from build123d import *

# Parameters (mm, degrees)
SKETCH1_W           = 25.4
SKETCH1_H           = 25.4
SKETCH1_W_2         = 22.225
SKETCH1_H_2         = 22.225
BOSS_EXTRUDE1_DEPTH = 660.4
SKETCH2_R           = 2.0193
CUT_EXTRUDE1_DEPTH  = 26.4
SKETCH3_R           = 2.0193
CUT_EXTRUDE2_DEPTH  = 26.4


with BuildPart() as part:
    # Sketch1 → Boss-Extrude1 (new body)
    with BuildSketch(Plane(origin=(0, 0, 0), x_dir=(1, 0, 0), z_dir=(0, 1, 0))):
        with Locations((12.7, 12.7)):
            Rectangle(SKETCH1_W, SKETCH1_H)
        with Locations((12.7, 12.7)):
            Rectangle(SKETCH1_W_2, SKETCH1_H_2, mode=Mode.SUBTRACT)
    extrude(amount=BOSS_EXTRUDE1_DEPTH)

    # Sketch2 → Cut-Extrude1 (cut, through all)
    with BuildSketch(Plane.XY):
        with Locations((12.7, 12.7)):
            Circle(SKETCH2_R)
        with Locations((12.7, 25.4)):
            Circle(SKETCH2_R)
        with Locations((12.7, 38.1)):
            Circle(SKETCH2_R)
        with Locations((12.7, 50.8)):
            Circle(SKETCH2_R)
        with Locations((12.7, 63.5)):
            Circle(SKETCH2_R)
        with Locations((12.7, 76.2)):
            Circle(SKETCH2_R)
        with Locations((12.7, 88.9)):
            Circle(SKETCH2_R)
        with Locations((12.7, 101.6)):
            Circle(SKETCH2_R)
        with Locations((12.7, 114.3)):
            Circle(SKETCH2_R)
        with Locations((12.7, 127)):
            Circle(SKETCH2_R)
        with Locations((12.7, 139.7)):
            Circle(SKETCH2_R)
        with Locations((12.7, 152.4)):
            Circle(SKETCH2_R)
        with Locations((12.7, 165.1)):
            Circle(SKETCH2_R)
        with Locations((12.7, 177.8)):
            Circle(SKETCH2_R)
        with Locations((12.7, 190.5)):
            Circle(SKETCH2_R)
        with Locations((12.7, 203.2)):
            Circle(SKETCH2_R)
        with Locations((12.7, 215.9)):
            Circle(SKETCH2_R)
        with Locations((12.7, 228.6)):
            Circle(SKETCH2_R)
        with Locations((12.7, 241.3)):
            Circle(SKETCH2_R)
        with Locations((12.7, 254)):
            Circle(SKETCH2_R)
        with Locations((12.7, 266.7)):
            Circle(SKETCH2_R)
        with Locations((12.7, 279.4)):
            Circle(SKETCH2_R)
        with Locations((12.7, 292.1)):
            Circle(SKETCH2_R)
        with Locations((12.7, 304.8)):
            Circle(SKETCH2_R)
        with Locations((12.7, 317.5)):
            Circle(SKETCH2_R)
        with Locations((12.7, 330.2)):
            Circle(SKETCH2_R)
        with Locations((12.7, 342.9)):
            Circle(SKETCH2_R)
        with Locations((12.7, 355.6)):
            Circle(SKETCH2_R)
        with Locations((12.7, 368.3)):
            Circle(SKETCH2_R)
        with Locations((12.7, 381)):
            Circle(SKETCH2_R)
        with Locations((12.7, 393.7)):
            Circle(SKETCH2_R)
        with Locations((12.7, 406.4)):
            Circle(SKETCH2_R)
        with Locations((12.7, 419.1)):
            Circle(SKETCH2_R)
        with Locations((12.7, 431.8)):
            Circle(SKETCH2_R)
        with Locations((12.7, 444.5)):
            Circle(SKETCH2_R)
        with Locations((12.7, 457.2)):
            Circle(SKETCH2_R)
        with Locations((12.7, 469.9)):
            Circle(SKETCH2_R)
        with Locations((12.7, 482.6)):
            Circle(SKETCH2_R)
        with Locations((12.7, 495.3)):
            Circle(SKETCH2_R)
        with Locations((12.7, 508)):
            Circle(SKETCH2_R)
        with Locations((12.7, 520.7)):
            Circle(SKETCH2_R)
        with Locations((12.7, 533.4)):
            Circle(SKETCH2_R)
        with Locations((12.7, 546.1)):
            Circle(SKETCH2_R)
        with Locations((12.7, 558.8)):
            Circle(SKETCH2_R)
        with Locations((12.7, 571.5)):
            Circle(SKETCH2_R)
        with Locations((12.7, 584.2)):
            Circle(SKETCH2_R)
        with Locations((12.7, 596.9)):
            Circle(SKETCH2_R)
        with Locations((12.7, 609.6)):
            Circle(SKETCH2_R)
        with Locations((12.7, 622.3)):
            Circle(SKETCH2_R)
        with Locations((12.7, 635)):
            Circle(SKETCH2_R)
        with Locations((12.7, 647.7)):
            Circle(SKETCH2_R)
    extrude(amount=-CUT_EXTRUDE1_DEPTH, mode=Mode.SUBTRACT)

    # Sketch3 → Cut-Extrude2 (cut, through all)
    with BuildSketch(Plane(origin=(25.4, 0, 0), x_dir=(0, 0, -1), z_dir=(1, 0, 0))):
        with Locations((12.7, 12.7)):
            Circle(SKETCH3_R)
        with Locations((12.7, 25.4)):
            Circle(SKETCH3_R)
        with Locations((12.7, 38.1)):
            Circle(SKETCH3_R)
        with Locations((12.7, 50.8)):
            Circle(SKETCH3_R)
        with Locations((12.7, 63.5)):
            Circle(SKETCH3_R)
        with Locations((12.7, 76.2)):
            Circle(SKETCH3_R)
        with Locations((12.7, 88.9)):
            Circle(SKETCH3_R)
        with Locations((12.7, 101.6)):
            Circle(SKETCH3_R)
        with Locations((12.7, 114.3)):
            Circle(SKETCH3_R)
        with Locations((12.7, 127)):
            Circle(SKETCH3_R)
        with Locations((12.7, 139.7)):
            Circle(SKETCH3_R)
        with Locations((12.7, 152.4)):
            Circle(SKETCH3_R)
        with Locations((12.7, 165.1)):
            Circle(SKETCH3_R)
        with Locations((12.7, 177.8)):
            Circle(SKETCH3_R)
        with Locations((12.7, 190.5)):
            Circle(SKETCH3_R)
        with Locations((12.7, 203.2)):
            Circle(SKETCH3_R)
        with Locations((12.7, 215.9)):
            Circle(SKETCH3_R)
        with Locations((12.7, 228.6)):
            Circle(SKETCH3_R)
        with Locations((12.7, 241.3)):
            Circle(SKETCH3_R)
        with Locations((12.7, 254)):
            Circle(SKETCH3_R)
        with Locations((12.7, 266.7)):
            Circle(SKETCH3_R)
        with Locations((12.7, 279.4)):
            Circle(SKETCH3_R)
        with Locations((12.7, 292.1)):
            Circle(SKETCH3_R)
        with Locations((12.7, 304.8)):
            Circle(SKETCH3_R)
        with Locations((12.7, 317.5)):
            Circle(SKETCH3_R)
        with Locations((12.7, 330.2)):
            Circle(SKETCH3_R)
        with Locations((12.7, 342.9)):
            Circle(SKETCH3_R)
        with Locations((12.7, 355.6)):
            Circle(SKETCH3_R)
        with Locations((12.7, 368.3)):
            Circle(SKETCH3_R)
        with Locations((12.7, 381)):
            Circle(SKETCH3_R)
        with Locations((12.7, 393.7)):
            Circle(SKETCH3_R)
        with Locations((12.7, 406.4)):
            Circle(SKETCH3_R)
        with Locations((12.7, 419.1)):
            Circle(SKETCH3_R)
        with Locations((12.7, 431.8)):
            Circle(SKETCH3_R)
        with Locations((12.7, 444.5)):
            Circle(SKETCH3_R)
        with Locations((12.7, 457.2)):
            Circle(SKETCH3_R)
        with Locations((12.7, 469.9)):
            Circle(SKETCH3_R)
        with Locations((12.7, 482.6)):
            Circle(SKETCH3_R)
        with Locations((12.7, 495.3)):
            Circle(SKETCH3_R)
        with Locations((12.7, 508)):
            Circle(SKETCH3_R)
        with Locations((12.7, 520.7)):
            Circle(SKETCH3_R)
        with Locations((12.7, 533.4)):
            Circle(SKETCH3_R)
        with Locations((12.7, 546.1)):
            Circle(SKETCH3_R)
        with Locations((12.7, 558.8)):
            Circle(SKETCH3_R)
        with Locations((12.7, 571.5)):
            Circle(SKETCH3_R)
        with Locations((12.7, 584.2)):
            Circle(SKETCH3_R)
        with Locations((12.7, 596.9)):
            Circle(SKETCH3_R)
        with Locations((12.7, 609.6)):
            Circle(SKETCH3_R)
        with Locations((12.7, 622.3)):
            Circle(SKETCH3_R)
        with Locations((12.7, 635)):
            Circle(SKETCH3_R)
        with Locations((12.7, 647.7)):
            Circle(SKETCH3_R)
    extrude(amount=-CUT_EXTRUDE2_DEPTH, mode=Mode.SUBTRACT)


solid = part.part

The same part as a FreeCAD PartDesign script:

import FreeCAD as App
import Part
import Sketcher

V = App.Vector
Q = App.Units.Quantity


def add_polygon(sketch, points):
    """Adds a closed chain of lines whose ends are joined by coincident constraints."""
    first, n = sketch.GeometryCount, len(points)
    for a, b in zip(points, points[1:] + points[:1]):
        sketch.addGeometry(Part.LineSegment(App.Vector(*a, 0), App.Vector(*b, 0)), False)
    for i in range(n):
        sketch.addConstraint(Sketcher.Constraint("Coincident", first + i, 2, first + (i + 1) % n, 1))

doc = App.newDocument("Part")
params = doc.addObject("Spreadsheet::Sheet", "Params")
for row, (alias, value) in enumerate([
    ("sketch1_width", "1 in"),
    ("sketch1_width2", "0.875 in"),
    ("pad1_length", "26 in"),
    ("sketch2_diameter", "0.159 in"),
    ("sketch3_diameter", "0.159 in"),
], start=1):
    params.set(f"A{row}", alias)
    params.set(f"B{row}", "=" + value)
    params.setAlias(f"B{row}", alias)

body = doc.addObject("PartDesign::Body", "Body")

sketch1 = doc.addObject("Sketcher::SketchObject", "Sketch")
body.addObject(sketch1)
sketch1.AttachmentSupport = (doc.XZ_Plane, [""])
sketch1.MapMode = "FlatFace"
add_polygon(sketch1, [(0, -25), (0, 0), (25, 0), (25, -25)])
add_polygon(sketch1, [(24, -2), (2, -2), (2, -24), (24, -24)])
sketch1.addConstraint([
    Sketcher.Constraint("Vertical", 0),
    Sketcher.Constraint("Horizontal", 1),
    Sketcher.Constraint("Vertical", 2),
    Sketcher.Constraint("Horizontal", 3),
    Sketcher.Constraint("Horizontal", 4),
    Sketcher.Constraint("Vertical", 5),
    Sketcher.Constraint("Horizontal", 6),
    Sketcher.Constraint("Vertical", 7),
    Sketcher.Constraint("Coincident", 0, 2, -1, 1),
    Sketcher.Constraint("Equal", 3, 0),
    Sketcher.Constraint("Equal", 6, 5),
    Sketcher.Constraint("DistanceX", 1, 1, 1, 2, Q("1 in")),
    Sketcher.Constraint("DistanceX", 4, 2, 4, 1, Q("0.875 in")),
    Sketcher.Constraint("DistanceX", -1, 1, 4, 2, Q("0.0625 in")),
    Sketcher.Constraint("DistanceY", 4, 2, -1, 1, Q("0.0625 in")),
])
sketch1.setExpression("Constraints[19]", "Params.sketch1_width")
sketch1.setExpression("Constraints[20]", "Params.sketch1_width2")
pad1 = doc.addObject("PartDesign::Pad", "Pad")
body.addObject(pad1)
pad1.Profile = sketch1
pad1.setExpression("Length", "Params.pad1_length")
pad1.Reversed = True

sketch2 = doc.addObject("Sketcher::SketchObject", "Sketch001")
body.addObject(sketch2)
sketch2.AttachmentSupport = (doc.XY_Plane, [""])
sketch2.MapMode = "FlatFace"
sketch2.addGeometry([
    Part.Circle(V(12.7, 12.7, 0), V(0, 0, 1), 2),
    Part.Circle(V(12.7, 25.4, 0), V(0, 0, 1), 2),
    Part.Circle(V(12.7, 38.1, 0), V(0, 0, 1), 2),
    Part.Circle(V(12.7, 50.8, 0), V(0, 0, 1), 2),
    Part.Circle(V(12.7, 63.5, 0), V(0, 0, 1), 2),
    Part.Circle(V(12.7, 76.2, 0), V(0, 0, 1), 2),
    Part.Circle(V(12.7, 88.9, 0), V(0, 0, 1), 2),
    Part.Circle(V(12.7, 101.6, 0), V(0, 0, 1), 2),
    Part.Circle(V(12.7, 114.3, 0), V(0, 0, 1), 2),
    Part.Circle(V(12.7, 127, 0), V(0, 0, 1), 2),
    Part.Circle(V(12.7, 139.7, 0), V(0, 0, 1), 2),
    Part.Circle(V(12.7, 152.4, 0), V(0, 0, 1), 2),
    Part.Circle(V(12.7, 165.1, 0), V(0, 0, 1), 2),
    Part.Circle(V(12.7, 177.8, 0), V(0, 0, 1), 2),
    Part.Circle(V(12.7, 190.5, 0), V(0, 0, 1), 2),
    Part.Circle(V(12.7, 203.2, 0), V(0, 0, 1), 2),
    Part.Circle(V(12.7, 215.9, 0), V(0, 0, 1), 2),
    Part.Circle(V(12.7, 228.6, 0), V(0, 0, 1), 2),
    Part.Circle(V(12.7, 241.3, 0), V(0, 0, 1), 2),
    Part.Circle(V(12.7, 254, 0), V(0, 0, 1), 2),
    Part.Circle(V(12.7, 266.7, 0), V(0, 0, 1), 2),
    Part.Circle(V(12.7, 279.4, 0), V(0, 0, 1), 2),
    Part.Circle(V(12.7, 292.1, 0), V(0, 0, 1), 2),
    Part.Circle(V(12.7, 304.8, 0), V(0, 0, 1), 2),
    Part.Circle(V(12.7, 317.5, 0), V(0, 0, 1), 2),
    Part.Circle(V(12.7, 330.2, 0), V(0, 0, 1), 2),
    Part.Circle(V(12.7, 342.9, 0), V(0, 0, 1), 2),
    Part.Circle(V(12.7, 355.6, 0), V(0, 0, 1), 2),
    Part.Circle(V(12.7, 368.3, 0), V(0, 0, 1), 2),
    Part.Circle(V(12.7, 381, 0), V(0, 0, 1), 2),
    Part.Circle(V(12.7, 393.7, 0), V(0, 0, 1), 2),
    Part.Circle(V(12.7, 406.4, 0), V(0, 0, 1), 2),
    Part.Circle(V(12.7, 419.1, 0), V(0, 0, 1), 2),
    Part.Circle(V(12.7, 431.8, 0), V(0, 0, 1), 2),
    Part.Circle(V(12.7, 444.5, 0), V(0, 0, 1), 2),
    Part.Circle(V(12.7, 457.2, 0), V(0, 0, 1), 2),
    Part.Circle(V(12.7, 469.9, 0), V(0, 0, 1), 2),
    Part.Circle(V(12.7, 482.6, 0), V(0, 0, 1), 2),
    Part.Circle(V(12.7, 495.3, 0), V(0, 0, 1), 2),
    Part.Circle(V(12.7, 508, 0), V(0, 0, 1), 2),
    Part.Circle(V(12.7, 520.7, 0), V(0, 0, 1), 2),
    Part.Circle(V(12.7, 533.4, 0), V(0, 0, 1), 2),
    Part.Circle(V(12.7, 546.1, 0), V(0, 0, 1), 2),
    Part.Circle(V(12.7, 558.8, 0), V(0, 0, 1), 2),
    Part.Circle(V(12.7, 571.5, 0), V(0, 0, 1), 2),
    Part.Circle(V(12.7, 584.2, 0), V(0, 0, 1), 2),
    Part.Circle(V(12.7, 596.9, 0), V(0, 0, 1), 2),
    Part.Circle(V(12.7, 609.6, 0), V(0, 0, 1), 2),
    Part.Circle(V(12.7, 622.3, 0), V(0, 0, 1), 2),
    Part.Circle(V(12.7, 635, 0), V(0, 0, 1), 2),
    Part.Circle(V(12.7, 647.7, 0), V(0, 0, 1), 2),
], False)
sketch2.addConstraint([
    Sketcher.Constraint("Equal", 0, 1),
    Sketcher.Constraint("Equal", 1, 2),
    Sketcher.Constraint("Equal", 2, 3),
    Sketcher.Constraint("Equal", 3, 4),
    Sketcher.Constraint("Equal", 4, 5),
    Sketcher.Constraint("Equal", 5, 6),
    Sketcher.Constraint("Equal", 6, 7),
    Sketcher.Constraint("Equal", 7, 8),
    Sketcher.Constraint("Equal", 8, 9),
    Sketcher.Constraint("Equal", 9, 10),
    Sketcher.Constraint("Equal", 10, 11),
    Sketcher.Constraint("Equal", 11, 12),
    Sketcher.Constraint("Equal", 12, 13),
    Sketcher.Constraint("Equal", 13, 14),
    Sketcher.Constraint("Equal", 14, 15),
    Sketcher.Constraint("Equal", 15, 16),
    Sketcher.Constraint("Equal", 16, 17),
    Sketcher.Constraint("Equal", 17, 18),
    Sketcher.Constraint("Equal", 18, 19),
    Sketcher.Constraint("Equal", 19, 20),
    Sketcher.Constraint("Equal", 20, 21),
    Sketcher.Constraint("Equal", 21, 22),
    Sketcher.Constraint("Equal", 22, 23),
    Sketcher.Constraint("Equal", 23, 24),
    Sketcher.Constraint("Equal", 24, 25),
    Sketcher.Constraint("Equal", 25, 26),
    Sketcher.Constraint("Equal", 26, 27),
    Sketcher.Constraint("Equal", 27, 28),
    Sketcher.Constraint("Equal", 28, 29),
    Sketcher.Constraint("Equal", 29, 30),
    Sketcher.Constraint("Equal", 30, 31),
    Sketcher.Constraint("Equal", 31, 32),
    Sketcher.Constraint("Equal", 32, 33),
    Sketcher.Constraint("Equal", 33, 34),
    Sketcher.Constraint("Equal", 34, 35),
    Sketcher.Constraint("Equal", 35, 36),
    Sketcher.Constraint("Equal", 36, 37),
    Sketcher.Constraint("Equal", 37, 38),
    Sketcher.Constraint("Equal", 38, 39),
    Sketcher.Constraint("Equal", 39, 40),
    Sketcher.Constraint("Equal", 40, 41),
    Sketcher.Constraint("Equal", 41, 42),
    Sketcher.Constraint("Equal", 42, 43),
    Sketcher.Constraint("Equal", 43, 44),
    Sketcher.Constraint("Equal", 44, 45),
    Sketcher.Constraint("Equal", 45, 46),
    Sketcher.Constraint("Equal", 46, 47),
    Sketcher.Constraint("Equal", 47, 48),
    Sketcher.Constraint("Equal", 48, 49),
    Sketcher.Constraint("Equal", 49, 50),
    Sketcher.Constraint("Vertical", 0, 3, 1, 3),
    Sketcher.Constraint("Vertical", 1, 3, 2, 3),
    Sketcher.Constraint("Vertical", 2, 3, 3, 3),
    Sketcher.Constraint("Vertical", 3, 3, 4, 3),
    Sketcher.Constraint("Vertical", 4, 3, 5, 3),
    Sketcher.Constraint("Vertical", 5, 3, 6, 3),
    Sketcher.Constraint("Vertical", 6, 3, 7, 3),
    Sketcher.Constraint("Vertical", 7, 3, 8, 3),
    Sketcher.Constraint("Vertical", 8, 3, 9, 3),
    Sketcher.Constraint("Vertical", 9, 3, 10, 3),
    Sketcher.Constraint("Vertical", 10, 3, 11, 3),
    Sketcher.Constraint("Vertical", 11, 3, 12, 3),
    Sketcher.Constraint("Vertical", 12, 3, 13, 3),
    Sketcher.Constraint("Vertical", 13, 3, 14, 3),
    Sketcher.Constraint("Vertical", 14, 3, 15, 3),
    Sketcher.Constraint("Vertical", 15, 3, 16, 3),
    Sketcher.Constraint("Vertical", 16, 3, 17, 3),
    Sketcher.Constraint("Vertical", 17, 3, 18, 3),
    Sketcher.Constraint("Vertical", 18, 3, 19, 3),
    Sketcher.Constraint("Vertical", 19, 3, 20, 3),
    Sketcher.Constraint("Vertical", 20, 3, 21, 3),
    Sketcher.Constraint("Vertical", 21, 3, 22, 3),
    Sketcher.Constraint("Vertical", 22, 3, 23, 3),
    Sketcher.Constraint("Vertical", 23, 3, 24, 3),
    Sketcher.Constraint("Vertical", 24, 3, 25, 3),
    Sketcher.Constraint("Vertical", 25, 3, 26, 3),
    Sketcher.Constraint("Vertical", 26, 3, 27, 3),
    Sketcher.Constraint("Vertical", 27, 3, 28, 3),
    Sketcher.Constraint("Vertical", 28, 3, 29, 3),
    Sketcher.Constraint("Vertical", 29, 3, 30, 3),
    Sketcher.Constraint("Vertical", 30, 3, 31, 3),
    Sketcher.Constraint("Vertical", 31, 3, 32, 3),
    Sketcher.Constraint("Vertical", 32, 3, 33, 3),
    Sketcher.Constraint("Vertical", 33, 3, 34, 3),
    Sketcher.Constraint("Vertical", 34, 3, 35, 3),
    Sketcher.Constraint("Vertical", 35, 3, 36, 3),
    Sketcher.Constraint("Vertical", 36, 3, 37, 3),
    Sketcher.Constraint("Vertical", 37, 3, 38, 3),
    Sketcher.Constraint("Vertical", 38, 3, 39, 3),
    Sketcher.Constraint("Vertical", 39, 3, 40, 3),
    Sketcher.Constraint("Vertical", 40, 3, 41, 3),
    Sketcher.Constraint("Vertical", 41, 3, 42, 3),
    Sketcher.Constraint("Vertical", 42, 3, 43, 3),
    Sketcher.Constraint("Vertical", 43, 3, 44, 3),
    Sketcher.Constraint("Vertical", 44, 3, 45, 3),
    Sketcher.Constraint("Vertical", 45, 3, 46, 3),
    Sketcher.Constraint("Vertical", 46, 3, 47, 3),
    Sketcher.Constraint("Vertical", 47, 3, 48, 3),
    Sketcher.Constraint("Vertical", 48, 3, 49, 3),
    Sketcher.Constraint("Vertical", 49, 3, 50, 3),
    Sketcher.Constraint("Diameter", 0, Q("0.159 in")),
    Sketcher.Constraint("DistanceY", -1, 1, 1, 3, Q("1 in")),
    Sketcher.Constraint("DistanceY", -1, 1, 3, 3, Q("2 in")),
    Sketcher.Constraint("DistanceY", -1, 1, 5, 3, Q("3 in")),
    Sketcher.Constraint("DistanceY", -1, 1, 7, 3, Q("4 in")),
    Sketcher.Constraint("DistanceY", -1, 1, 9, 3, Q("5 in")),
    Sketcher.Constraint("DistanceY", -1, 1, 11, 3, Q("6 in")),
    Sketcher.Constraint("DistanceY", -1, 1, 13, 3, Q("7 in")),
    Sketcher.Constraint("DistanceY", -1, 1, 15, 3, Q("8 in")),
    Sketcher.Constraint("DistanceY", -1, 1, 17, 3, Q("9 in")),
    Sketcher.Constraint("DistanceY", -1, 1, 19, 3, Q("10 in")),
    Sketcher.Constraint("DistanceY", -1, 1, 21, 3, Q("11 in")),
    Sketcher.Constraint("DistanceY", -1, 1, 23, 3, Q("12 in")),
    Sketcher.Constraint("DistanceY", -1, 1, 25, 3, Q("13 in")),
    Sketcher.Constraint("DistanceY", -1, 1, 27, 3, Q("14 in")),
    Sketcher.Constraint("DistanceY", -1, 1, 29, 3, Q("15 in")),
    Sketcher.Constraint("DistanceY", -1, 1, 31, 3, Q("16 in")),
    Sketcher.Constraint("DistanceY", -1, 1, 33, 3, Q("17 in")),
    Sketcher.Constraint("DistanceY", -1, 1, 35, 3, Q("18 in")),
    Sketcher.Constraint("DistanceY", -1, 1, 37, 3, Q("19 in")),
    Sketcher.Constraint("DistanceY", -1, 1, 39, 3, Q("20 in")),
    Sketcher.Constraint("DistanceY", -1, 1, 41, 3, Q("21 in")),
    Sketcher.Constraint("DistanceY", -1, 1, 43, 3, Q("22 in")),
    Sketcher.Constraint("DistanceY", -1, 1, 45, 3, Q("23 in")),
    Sketcher.Constraint("DistanceY", -1, 1, 47, 3, Q("24 in")),
    Sketcher.Constraint("DistanceY", -1, 1, 49, 3, Q("25 in")),
    Sketcher.Constraint("DistanceY", 0, 3, 2, 3, Q("1 in")),
    Sketcher.Constraint("DistanceY", 2, 3, 4, 3, Q("1 in")),
    Sketcher.Constraint("DistanceY", 4, 3, 6, 3, Q("1 in")),
    Sketcher.Constraint("DistanceY", 6, 3, 8, 3, Q("1 in")),
    Sketcher.Constraint("DistanceY", 8, 3, 10, 3, Q("1 in")),
    Sketcher.Constraint("DistanceY", 10, 3, 12, 3, Q("1 in")),
    Sketcher.Constraint("DistanceY", 12, 3, 14, 3, Q("1 in")),
    Sketcher.Constraint("DistanceY", 14, 3, 16, 3, Q("1 in")),
    Sketcher.Constraint("DistanceY", 16, 3, 18, 3, Q("1 in")),
    Sketcher.Constraint("DistanceY", 18, 3, 20, 3, Q("1 in")),
    Sketcher.Constraint("DistanceY", 20, 3, 22, 3, Q("1 in")),
    Sketcher.Constraint("DistanceY", 22, 3, 24, 3, Q("1 in")),
    Sketcher.Constraint("DistanceY", 24, 3, 26, 3, Q("1 in")),
    Sketcher.Constraint("DistanceY", 26, 3, 28, 3, Q("1 in")),
    Sketcher.Constraint("DistanceY", 28, 3, 30, 3, Q("1 in")),
    Sketcher.Constraint("DistanceY", 30, 3, 32, 3, Q("1 in")),
    Sketcher.Constraint("DistanceY", 32, 3, 34, 3, Q("1 in")),
    Sketcher.Constraint("DistanceY", 34, 3, 36, 3, Q("1 in")),
    Sketcher.Constraint("DistanceY", 36, 3, 38, 3, Q("1 in")),
    Sketcher.Constraint("DistanceY", 38, 3, 40, 3, Q("1 in")),
    Sketcher.Constraint("DistanceY", 40, 3, 42, 3, Q("1 in")),
    Sketcher.Constraint("DistanceY", 42, 3, 44, 3, Q("1 in")),
    Sketcher.Constraint("DistanceY", 44, 3, 46, 3, Q("1 in")),
    Sketcher.Constraint("DistanceY", 46, 3, 48, 3, Q("1 in")),
    Sketcher.Constraint("DistanceY", 48, 3, 50, 3, Q("1 in")),
    Sketcher.Constraint("DistanceX", -1, 1, 0, 3, Q("0.5 in")),
    Sketcher.Constraint("DistanceY", -1, 1, 0, 3, Q("0.5 in")),
])
sketch2.setExpression("Constraints[100]", "Params.sketch2_diameter")
pocket1 = doc.addObject("PartDesign::Pocket", "Pocket")
body.addObject(pocket1)
pocket1.Profile = sketch2
pocket1.Type = "ThroughAll"

sketch3 = doc.addObject("Sketcher::SketchObject", "Sketch002")
body.addObject(sketch3)
sketch3.AttachmentSupport = (doc.YZ_Plane, [""])
sketch3.MapMode = "FlatFace"
sketch3.AttachmentOffset = App.Placement(V(0, 0, 1 * 25.4), App.Rotation())
sketch3.addGeometry([
    Part.Circle(V(12.7, -12.7, 0), V(0, 0, 1), 2),
    Part.Circle(V(25.4, -12.7, 0), V(0, 0, 1), 2),
    Part.Circle(V(38.1, -12.7, 0), V(0, 0, 1), 2),
    Part.Circle(V(50.8, -12.7, 0), V(0, 0, 1), 2),
    Part.Circle(V(63.5, -12.7, 0), V(0, 0, 1), 2),
    Part.Circle(V(76.2, -12.7, 0), V(0, 0, 1), 2),
    Part.Circle(V(88.9, -12.7, 0), V(0, 0, 1), 2),
    Part.Circle(V(101.6, -12.7, 0), V(0, 0, 1), 2),
    Part.Circle(V(114.3, -12.7, 0), V(0, 0, 1), 2),
    Part.Circle(V(127, -12.7, 0), V(0, 0, 1), 2),
    Part.Circle(V(139.7, -12.7, 0), V(0, 0, 1), 2),
    Part.Circle(V(152.4, -12.7, 0), V(0, 0, 1), 2),
    Part.Circle(V(165.1, -12.7, 0), V(0, 0, 1), 2),
    Part.Circle(V(177.8, -12.7, 0), V(0, 0, 1), 2),
    Part.Circle(V(190.5, -12.7, 0), V(0, 0, 1), 2),
    Part.Circle(V(203.2, -12.7, 0), V(0, 0, 1), 2),
    Part.Circle(V(215.9, -12.7, 0), V(0, 0, 1), 2),
    Part.Circle(V(228.6, -12.7, 0), V(0, 0, 1), 2),
    Part.Circle(V(241.3, -12.7, 0), V(0, 0, 1), 2),
    Part.Circle(V(254, -12.7, 0), V(0, 0, 1), 2),
    Part.Circle(V(266.7, -12.7, 0), V(0, 0, 1), 2),
    Part.Circle(V(279.4, -12.7, 0), V(0, 0, 1), 2),
    Part.Circle(V(292.1, -12.7, 0), V(0, 0, 1), 2),
    Part.Circle(V(304.8, -12.7, 0), V(0, 0, 1), 2),
    Part.Circle(V(317.5, -12.7, 0), V(0, 0, 1), 2),
    Part.Circle(V(330.2, -12.7, 0), V(0, 0, 1), 2),
    Part.Circle(V(342.9, -12.7, 0), V(0, 0, 1), 2),
    Part.Circle(V(355.6, -12.7, 0), V(0, 0, 1), 2),
    Part.Circle(V(368.3, -12.7, 0), V(0, 0, 1), 2),
    Part.Circle(V(381, -12.7, 0), V(0, 0, 1), 2),
    Part.Circle(V(393.7, -12.7, 0), V(0, 0, 1), 2),
    Part.Circle(V(406.4, -12.7, 0), V(0, 0, 1), 2),
    Part.Circle(V(419.1, -12.7, 0), V(0, 0, 1), 2),
    Part.Circle(V(431.8, -12.7, 0), V(0, 0, 1), 2),
    Part.Circle(V(444.5, -12.7, 0), V(0, 0, 1), 2),
    Part.Circle(V(457.2, -12.7, 0), V(0, 0, 1), 2),
    Part.Circle(V(469.9, -12.7, 0), V(0, 0, 1), 2),
    Part.Circle(V(482.6, -12.7, 0), V(0, 0, 1), 2),
    Part.Circle(V(495.3, -12.7, 0), V(0, 0, 1), 2),
    Part.Circle(V(508, -12.7, 0), V(0, 0, 1), 2),
    Part.Circle(V(520.7, -12.7, 0), V(0, 0, 1), 2),
    Part.Circle(V(533.4, -12.7, 0), V(0, 0, 1), 2),
    Part.Circle(V(546.1, -12.7, 0), V(0, 0, 1), 2),
    Part.Circle(V(558.8, -12.7, 0), V(0, 0, 1), 2),
    Part.Circle(V(571.5, -12.7, 0), V(0, 0, 1), 2),
    Part.Circle(V(584.2, -12.7, 0), V(0, 0, 1), 2),
    Part.Circle(V(596.9, -12.7, 0), V(0, 0, 1), 2),
    Part.Circle(V(609.6, -12.7, 0), V(0, 0, 1), 2),
    Part.Circle(V(622.3, -12.7, 0), V(0, 0, 1), 2),
    Part.Circle(V(635, -12.7, 0), V(0, 0, 1), 2),
    Part.Circle(V(647.7, -12.7, 0), V(0, 0, 1), 2),
], False)
sketch3.addConstraint([
    Sketcher.Constraint("Equal", 0, 1),
    Sketcher.Constraint("Equal", 1, 2),
    Sketcher.Constraint("Equal", 2, 3),
    Sketcher.Constraint("Equal", 3, 4),
    Sketcher.Constraint("Equal", 4, 5),
    Sketcher.Constraint("Equal", 5, 6),
    Sketcher.Constraint("Equal", 6, 7),
    Sketcher.Constraint("Equal", 7, 8),
    Sketcher.Constraint("Equal", 8, 9),
    Sketcher.Constraint("Equal", 9, 10),
    Sketcher.Constraint("Equal", 10, 11),
    Sketcher.Constraint("Equal", 11, 12),
    Sketcher.Constraint("Equal", 12, 13),
    Sketcher.Constraint("Equal", 13, 14),
    Sketcher.Constraint("Equal", 14, 15),
    Sketcher.Constraint("Equal", 15, 16),
    Sketcher.Constraint("Equal", 16, 17),
    Sketcher.Constraint("Equal", 17, 18),
    Sketcher.Constraint("Equal", 18, 19),
    Sketcher.Constraint("Equal", 19, 20),
    Sketcher.Constraint("Equal", 20, 21),
    Sketcher.Constraint("Equal", 21, 22),
    Sketcher.Constraint("Equal", 22, 23),
    Sketcher.Constraint("Equal", 23, 24),
    Sketcher.Constraint("Equal", 24, 25),
    Sketcher.Constraint("Equal", 25, 26),
    Sketcher.Constraint("Equal", 26, 27),
    Sketcher.Constraint("Equal", 27, 28),
    Sketcher.Constraint("Equal", 28, 29),
    Sketcher.Constraint("Equal", 29, 30),
    Sketcher.Constraint("Equal", 30, 31),
    Sketcher.Constraint("Equal", 31, 32),
    Sketcher.Constraint("Equal", 32, 33),
    Sketcher.Constraint("Equal", 33, 34),
    Sketcher.Constraint("Equal", 34, 35),
    Sketcher.Constraint("Equal", 35, 36),
    Sketcher.Constraint("Equal", 36, 37),
    Sketcher.Constraint("Equal", 37, 38),
    Sketcher.Constraint("Equal", 38, 39),
    Sketcher.Constraint("Equal", 39, 40),
    Sketcher.Constraint("Equal", 40, 41),
    Sketcher.Constraint("Equal", 41, 42),
    Sketcher.Constraint("Equal", 42, 43),
    Sketcher.Constraint("Equal", 43, 44),
    Sketcher.Constraint("Equal", 44, 45),
    Sketcher.Constraint("Equal", 45, 46),
    Sketcher.Constraint("Equal", 46, 47),
    Sketcher.Constraint("Equal", 47, 48),
    Sketcher.Constraint("Equal", 48, 49),
    Sketcher.Constraint("Equal", 49, 50),
    Sketcher.Constraint("Horizontal", 0, 3, 1, 3),
    Sketcher.Constraint("Horizontal", 1, 3, 2, 3),
    Sketcher.Constraint("Horizontal", 2, 3, 3, 3),
    Sketcher.Constraint("Horizontal", 3, 3, 4, 3),
    Sketcher.Constraint("Horizontal", 4, 3, 5, 3),
    Sketcher.Constraint("Horizontal", 5, 3, 6, 3),
    Sketcher.Constraint("Horizontal", 6, 3, 7, 3),
    Sketcher.Constraint("Horizontal", 7, 3, 8, 3),
    Sketcher.Constraint("Horizontal", 8, 3, 9, 3),
    Sketcher.Constraint("Horizontal", 9, 3, 10, 3),
    Sketcher.Constraint("Horizontal", 10, 3, 11, 3),
    Sketcher.Constraint("Horizontal", 11, 3, 12, 3),
    Sketcher.Constraint("Horizontal", 12, 3, 13, 3),
    Sketcher.Constraint("Horizontal", 13, 3, 14, 3),
    Sketcher.Constraint("Horizontal", 14, 3, 15, 3),
    Sketcher.Constraint("Horizontal", 15, 3, 16, 3),
    Sketcher.Constraint("Horizontal", 16, 3, 17, 3),
    Sketcher.Constraint("Horizontal", 17, 3, 18, 3),
    Sketcher.Constraint("Horizontal", 18, 3, 19, 3),
    Sketcher.Constraint("Horizontal", 19, 3, 20, 3),
    Sketcher.Constraint("Horizontal", 20, 3, 21, 3),
    Sketcher.Constraint("Horizontal", 21, 3, 22, 3),
    Sketcher.Constraint("Horizontal", 22, 3, 23, 3),
    Sketcher.Constraint("Horizontal", 23, 3, 24, 3),
    Sketcher.Constraint("Horizontal", 24, 3, 25, 3),
    Sketcher.Constraint("Horizontal", 25, 3, 26, 3),
    Sketcher.Constraint("Horizontal", 26, 3, 27, 3),
    Sketcher.Constraint("Horizontal", 27, 3, 28, 3),
    Sketcher.Constraint("Horizontal", 28, 3, 29, 3),
    Sketcher.Constraint("Horizontal", 29, 3, 30, 3),
    Sketcher.Constraint("Horizontal", 30, 3, 31, 3),
    Sketcher.Constraint("Horizontal", 31, 3, 32, 3),
    Sketcher.Constraint("Horizontal", 32, 3, 33, 3),
    Sketcher.Constraint("Horizontal", 33, 3, 34, 3),
    Sketcher.Constraint("Horizontal", 34, 3, 35, 3),
    Sketcher.Constraint("Horizontal", 35, 3, 36, 3),
    Sketcher.Constraint("Horizontal", 36, 3, 37, 3),
    Sketcher.Constraint("Horizontal", 37, 3, 38, 3),
    Sketcher.Constraint("Horizontal", 38, 3, 39, 3),
    Sketcher.Constraint("Horizontal", 39, 3, 40, 3),
    Sketcher.Constraint("Horizontal", 40, 3, 41, 3),
    Sketcher.Constraint("Horizontal", 41, 3, 42, 3),
    Sketcher.Constraint("Horizontal", 42, 3, 43, 3),
    Sketcher.Constraint("Horizontal", 43, 3, 44, 3),
    Sketcher.Constraint("Horizontal", 44, 3, 45, 3),
    Sketcher.Constraint("Horizontal", 45, 3, 46, 3),
    Sketcher.Constraint("Horizontal", 46, 3, 47, 3),
    Sketcher.Constraint("Horizontal", 47, 3, 48, 3),
    Sketcher.Constraint("Horizontal", 48, 3, 49, 3),
    Sketcher.Constraint("Horizontal", 49, 3, 50, 3),
    Sketcher.Constraint("Diameter", 0, Q("0.159 in")),
    Sketcher.Constraint("DistanceX", -1, 1, 1, 3, Q("1 in")),
    Sketcher.Constraint("DistanceX", -1, 1, 3, 3, Q("2 in")),
    Sketcher.Constraint("DistanceX", -1, 1, 5, 3, Q("3 in")),
    Sketcher.Constraint("DistanceX", -1, 1, 7, 3, Q("4 in")),
    Sketcher.Constraint("DistanceX", -1, 1, 9, 3, Q("5 in")),
    Sketcher.Constraint("DistanceX", -1, 1, 11, 3, Q("6 in")),
    Sketcher.Constraint("DistanceX", -1, 1, 13, 3, Q("7 in")),
    Sketcher.Constraint("DistanceX", -1, 1, 15, 3, Q("8 in")),
    Sketcher.Constraint("DistanceX", -1, 1, 17, 3, Q("9 in")),
    Sketcher.Constraint("DistanceX", -1, 1, 19, 3, Q("10 in")),
    Sketcher.Constraint("DistanceX", -1, 1, 21, 3, Q("11 in")),
    Sketcher.Constraint("DistanceX", -1, 1, 23, 3, Q("12 in")),
    Sketcher.Constraint("DistanceX", -1, 1, 25, 3, Q("13 in")),
    Sketcher.Constraint("DistanceX", -1, 1, 27, 3, Q("14 in")),
    Sketcher.Constraint("DistanceX", -1, 1, 29, 3, Q("15 in")),
    Sketcher.Constraint("DistanceX", -1, 1, 31, 3, Q("16 in")),
    Sketcher.Constraint("DistanceX", -1, 1, 33, 3, Q("17 in")),
    Sketcher.Constraint("DistanceX", -1, 1, 35, 3, Q("18 in")),
    Sketcher.Constraint("DistanceX", -1, 1, 37, 3, Q("19 in")),
    Sketcher.Constraint("DistanceX", -1, 1, 39, 3, Q("20 in")),
    Sketcher.Constraint("DistanceX", -1, 1, 41, 3, Q("21 in")),
    Sketcher.Constraint("DistanceX", -1, 1, 43, 3, Q("22 in")),
    Sketcher.Constraint("DistanceX", -1, 1, 45, 3, Q("23 in")),
    Sketcher.Constraint("DistanceX", -1, 1, 47, 3, Q("24 in")),
    Sketcher.Constraint("DistanceX", -1, 1, 49, 3, Q("25 in")),
    Sketcher.Constraint("DistanceX", 0, 3, 2, 3, Q("1 in")),
    Sketcher.Constraint("DistanceX", 2, 3, 4, 3, Q("1 in")),
    Sketcher.Constraint("DistanceX", 4, 3, 6, 3, Q("1 in")),
    Sketcher.Constraint("DistanceX", 6, 3, 8, 3, Q("1 in")),
    Sketcher.Constraint("DistanceX", 8, 3, 10, 3, Q("1 in")),
    Sketcher.Constraint("DistanceX", 10, 3, 12, 3, Q("1 in")),
    Sketcher.Constraint("DistanceX", 12, 3, 14, 3, Q("1 in")),
    Sketcher.Constraint("DistanceX", 14, 3, 16, 3, Q("1 in")),
    Sketcher.Constraint("DistanceX", 16, 3, 18, 3, Q("1 in")),
    Sketcher.Constraint("DistanceX", 18, 3, 20, 3, Q("1 in")),
    Sketcher.Constraint("DistanceX", 20, 3, 22, 3, Q("1 in")),
    Sketcher.Constraint("DistanceX", 22, 3, 24, 3, Q("1 in")),
    Sketcher.Constraint("DistanceX", 24, 3, 26, 3, Q("1 in")),
    Sketcher.Constraint("DistanceX", 26, 3, 28, 3, Q("1 in")),
    Sketcher.Constraint("DistanceX", 28, 3, 30, 3, Q("1 in")),
    Sketcher.Constraint("DistanceX", 30, 3, 32, 3, Q("1 in")),
    Sketcher.Constraint("DistanceX", 32, 3, 34, 3, Q("1 in")),
    Sketcher.Constraint("DistanceX", 34, 3, 36, 3, Q("1 in")),
    Sketcher.Constraint("DistanceX", 36, 3, 38, 3, Q("1 in")),
    Sketcher.Constraint("DistanceX", 38, 3, 40, 3, Q("1 in")),
    Sketcher.Constraint("DistanceX", 40, 3, 42, 3, Q("1 in")),
    Sketcher.Constraint("DistanceX", 42, 3, 44, 3, Q("1 in")),
    Sketcher.Constraint("DistanceX", 44, 3, 46, 3, Q("1 in")),
    Sketcher.Constraint("DistanceX", 46, 3, 48, 3, Q("1 in")),
    Sketcher.Constraint("DistanceX", 48, 3, 50, 3, Q("1 in")),
    Sketcher.Constraint("DistanceX", -1, 1, 0, 3, Q("0.5 in")),
    Sketcher.Constraint("DistanceY", 0, 3, -1, 1, Q("0.5 in")),
])
sketch3.setExpression("Constraints[100]", "Params.sketch3_diameter")
pocket2 = doc.addObject("PartDesign::Pocket", "Pocket001")
body.addObject(pocket2)
pocket2.Profile = sketch3
pocket2.Type = "ThroughAll"

doc.recompute()
